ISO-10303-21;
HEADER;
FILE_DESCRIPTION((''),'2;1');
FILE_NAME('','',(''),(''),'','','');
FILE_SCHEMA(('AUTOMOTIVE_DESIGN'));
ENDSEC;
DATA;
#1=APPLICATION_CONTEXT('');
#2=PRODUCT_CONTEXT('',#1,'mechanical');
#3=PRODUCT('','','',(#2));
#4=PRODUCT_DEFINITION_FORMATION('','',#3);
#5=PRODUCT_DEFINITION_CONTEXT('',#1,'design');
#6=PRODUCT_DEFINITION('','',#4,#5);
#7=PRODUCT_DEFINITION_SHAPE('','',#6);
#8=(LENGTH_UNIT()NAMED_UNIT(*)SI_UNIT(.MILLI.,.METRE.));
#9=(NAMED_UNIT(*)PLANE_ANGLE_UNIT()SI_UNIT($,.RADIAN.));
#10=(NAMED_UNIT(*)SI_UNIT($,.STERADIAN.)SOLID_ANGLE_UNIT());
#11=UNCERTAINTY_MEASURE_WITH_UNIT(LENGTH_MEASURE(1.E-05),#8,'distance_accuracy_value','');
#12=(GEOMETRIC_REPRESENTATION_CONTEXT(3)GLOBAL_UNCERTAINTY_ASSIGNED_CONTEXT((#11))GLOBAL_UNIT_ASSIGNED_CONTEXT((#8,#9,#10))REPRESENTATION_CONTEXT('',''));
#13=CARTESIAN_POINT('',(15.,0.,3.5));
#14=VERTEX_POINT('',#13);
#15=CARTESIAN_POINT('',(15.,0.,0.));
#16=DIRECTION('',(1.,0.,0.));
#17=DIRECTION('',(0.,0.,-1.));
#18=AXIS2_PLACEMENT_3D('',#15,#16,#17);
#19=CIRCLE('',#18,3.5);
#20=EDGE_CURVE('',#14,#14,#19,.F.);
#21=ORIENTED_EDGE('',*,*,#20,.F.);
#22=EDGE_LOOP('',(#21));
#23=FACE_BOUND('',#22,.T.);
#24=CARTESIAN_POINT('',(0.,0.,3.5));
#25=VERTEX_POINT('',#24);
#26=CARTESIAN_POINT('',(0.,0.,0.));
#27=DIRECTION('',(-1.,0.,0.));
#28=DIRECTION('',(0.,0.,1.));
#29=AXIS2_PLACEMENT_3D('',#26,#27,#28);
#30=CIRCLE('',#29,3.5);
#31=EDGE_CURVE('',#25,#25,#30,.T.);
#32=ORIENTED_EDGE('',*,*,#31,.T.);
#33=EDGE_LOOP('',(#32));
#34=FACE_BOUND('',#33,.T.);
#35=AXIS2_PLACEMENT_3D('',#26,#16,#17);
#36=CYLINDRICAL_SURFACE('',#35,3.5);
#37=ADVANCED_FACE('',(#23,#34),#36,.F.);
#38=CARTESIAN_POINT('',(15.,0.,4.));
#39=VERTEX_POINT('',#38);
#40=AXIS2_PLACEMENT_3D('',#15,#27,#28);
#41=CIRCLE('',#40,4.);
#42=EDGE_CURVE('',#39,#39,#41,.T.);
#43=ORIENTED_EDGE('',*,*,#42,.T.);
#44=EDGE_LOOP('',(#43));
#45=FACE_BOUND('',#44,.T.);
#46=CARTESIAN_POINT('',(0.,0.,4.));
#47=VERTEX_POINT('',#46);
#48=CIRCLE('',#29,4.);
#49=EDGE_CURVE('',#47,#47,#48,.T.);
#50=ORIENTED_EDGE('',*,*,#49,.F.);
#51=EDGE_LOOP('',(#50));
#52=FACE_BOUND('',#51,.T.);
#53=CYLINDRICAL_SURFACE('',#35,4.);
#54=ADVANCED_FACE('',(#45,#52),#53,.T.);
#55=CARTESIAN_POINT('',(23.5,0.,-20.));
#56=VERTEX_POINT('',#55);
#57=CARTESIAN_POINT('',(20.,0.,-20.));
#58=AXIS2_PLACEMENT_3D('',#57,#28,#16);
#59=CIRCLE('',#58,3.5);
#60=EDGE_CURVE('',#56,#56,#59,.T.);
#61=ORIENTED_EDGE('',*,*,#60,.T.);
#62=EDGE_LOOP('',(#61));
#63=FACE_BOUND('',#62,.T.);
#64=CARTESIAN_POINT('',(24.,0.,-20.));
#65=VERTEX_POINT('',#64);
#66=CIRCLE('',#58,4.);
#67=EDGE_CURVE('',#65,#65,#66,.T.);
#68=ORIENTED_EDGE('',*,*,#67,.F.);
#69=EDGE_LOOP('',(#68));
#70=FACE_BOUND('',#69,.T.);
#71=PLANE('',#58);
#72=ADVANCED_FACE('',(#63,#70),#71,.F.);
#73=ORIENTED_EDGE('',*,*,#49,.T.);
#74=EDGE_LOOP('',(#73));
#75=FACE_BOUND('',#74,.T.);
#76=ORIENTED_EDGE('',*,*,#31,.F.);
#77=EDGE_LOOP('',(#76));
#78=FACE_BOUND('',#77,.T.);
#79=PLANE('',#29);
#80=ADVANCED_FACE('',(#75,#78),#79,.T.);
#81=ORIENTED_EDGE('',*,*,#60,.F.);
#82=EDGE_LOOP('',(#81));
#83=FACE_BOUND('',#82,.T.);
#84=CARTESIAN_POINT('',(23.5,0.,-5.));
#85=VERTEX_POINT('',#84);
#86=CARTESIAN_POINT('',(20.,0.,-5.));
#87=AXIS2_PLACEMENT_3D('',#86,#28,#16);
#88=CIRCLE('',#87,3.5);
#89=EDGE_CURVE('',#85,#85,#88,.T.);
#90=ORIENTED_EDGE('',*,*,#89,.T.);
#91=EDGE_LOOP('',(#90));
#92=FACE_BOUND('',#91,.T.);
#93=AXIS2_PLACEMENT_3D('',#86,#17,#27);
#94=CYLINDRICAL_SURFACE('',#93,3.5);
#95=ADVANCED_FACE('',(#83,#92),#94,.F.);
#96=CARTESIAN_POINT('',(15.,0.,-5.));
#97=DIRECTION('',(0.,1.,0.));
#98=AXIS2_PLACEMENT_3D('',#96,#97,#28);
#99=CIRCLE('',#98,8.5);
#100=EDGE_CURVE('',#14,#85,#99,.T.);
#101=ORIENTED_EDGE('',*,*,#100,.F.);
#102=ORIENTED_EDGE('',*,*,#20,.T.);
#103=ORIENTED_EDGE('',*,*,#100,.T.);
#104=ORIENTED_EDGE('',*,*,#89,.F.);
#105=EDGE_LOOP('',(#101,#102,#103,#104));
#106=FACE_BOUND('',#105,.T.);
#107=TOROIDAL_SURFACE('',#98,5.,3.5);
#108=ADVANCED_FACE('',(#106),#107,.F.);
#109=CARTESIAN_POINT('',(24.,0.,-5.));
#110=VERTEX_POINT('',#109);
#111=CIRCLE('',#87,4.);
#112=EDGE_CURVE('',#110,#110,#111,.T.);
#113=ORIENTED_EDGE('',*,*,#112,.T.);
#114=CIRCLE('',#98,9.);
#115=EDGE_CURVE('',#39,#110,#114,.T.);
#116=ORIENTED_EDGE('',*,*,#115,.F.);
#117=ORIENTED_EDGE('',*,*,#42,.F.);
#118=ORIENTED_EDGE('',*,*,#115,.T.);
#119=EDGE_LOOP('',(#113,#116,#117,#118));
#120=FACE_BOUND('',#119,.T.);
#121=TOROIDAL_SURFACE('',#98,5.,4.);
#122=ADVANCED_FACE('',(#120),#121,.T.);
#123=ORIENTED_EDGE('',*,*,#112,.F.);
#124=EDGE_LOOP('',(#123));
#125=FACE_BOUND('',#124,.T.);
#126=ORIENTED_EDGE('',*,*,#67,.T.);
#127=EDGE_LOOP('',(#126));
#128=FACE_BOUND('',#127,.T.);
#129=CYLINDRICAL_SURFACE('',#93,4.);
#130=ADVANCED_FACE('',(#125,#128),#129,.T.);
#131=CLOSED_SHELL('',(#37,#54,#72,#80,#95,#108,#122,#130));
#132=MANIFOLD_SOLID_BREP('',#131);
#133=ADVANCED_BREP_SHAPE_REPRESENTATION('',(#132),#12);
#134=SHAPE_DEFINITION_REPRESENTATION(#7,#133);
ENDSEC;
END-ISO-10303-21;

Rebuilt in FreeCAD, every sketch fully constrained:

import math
import FreeCAD as App
import Part
import Sketcher
from FreeCAD import Vector
Q = App.Units.Quantity

doc = App.newDocument("Part")
body = doc.addObject("PartDesign::Body", "Body")

# Sketch on YZ plane
sketch1 = body.newObject("Sketcher::SketchObject", "Sketch")
sketch1.AttachmentSupport = (doc.getObject("YZ_Plane"), [""])
sketch1.MapMode = "FlatFace"
sketch1.addGeometry(Part.Circle(Vector(0, 0, 0), Vector(0, 0, 1), 4), False)
sketch1.addGeometry(Part.Circle(Vector(0, 0, 0), Vector(0, 0, 1), 3.5), False)
sketch1.addConstraint(Sketcher.Constraint("Coincident", 0, 3, -1, 1))
sketch1.addConstraint(Sketcher.Constraint("Coincident", 1, 3, -1, 1))
sketch1.addConstraint(Sketcher.Constraint("Diameter", 0, Q("8 mm")))
sketch1.addConstraint(Sketcher.Constraint("Diameter", 1, Q("7 mm")))

# Sketch on XZ plane
sketch2 = body.newObject("Sketcher::SketchObject", "Sketch001")
sketch2.AttachmentSupport = (doc.getObject("XZ_Plane"), [""])
sketch2.MapMode = "FlatFace"
sketch2.addGeometry(Part.LineSegment(Vector(0, 0, 0), Vector(15, 0, 0)), False)
sketch2.addGeometry(Part.ArcOfCircle(Part.Circle(Vector(15, -5, 0), Vector(0, 0, 1), 5), math.radians(0), math.radians(90)), False)
sketch2.addGeometry(Part.LineSegment(Vector(20, -5, 0), Vector(20, -20, 0)), False)
sketch2.addConstraint(Sketcher.Constraint("Tangent", 0, 2, 1, 2))
sketch2.addConstraint(Sketcher.Constraint("Tangent", 1, 1, 2, 1))
sketch2.addConstraint(Sketcher.Constraint("Horizontal", 0))
sketch2.addConstraint(Sketcher.Constraint("Vertical", 2))
sketch2.addConstraint(Sketcher.Constraint("Coincident", 0, 1, -1, 1))
sketch2.addConstraint(Sketcher.Constraint("Equal", 0, 2))
sketch2.addConstraint(Sketcher.Constraint("Radius", 1, Q("5 mm")))
sketch2.addConstraint(Sketcher.Constraint("DistanceX", 0, 1, 0, 2, Q("15 mm")))
doc.recompute()

additivepipe = body.newObject("PartDesign::AdditivePipe", "AdditivePipe")
additivepipe.Profile = sketch1
additivepipe.Spine = (sketch2, ["Edge1", "Edge2", "Edge3"])

doc.recompute()
